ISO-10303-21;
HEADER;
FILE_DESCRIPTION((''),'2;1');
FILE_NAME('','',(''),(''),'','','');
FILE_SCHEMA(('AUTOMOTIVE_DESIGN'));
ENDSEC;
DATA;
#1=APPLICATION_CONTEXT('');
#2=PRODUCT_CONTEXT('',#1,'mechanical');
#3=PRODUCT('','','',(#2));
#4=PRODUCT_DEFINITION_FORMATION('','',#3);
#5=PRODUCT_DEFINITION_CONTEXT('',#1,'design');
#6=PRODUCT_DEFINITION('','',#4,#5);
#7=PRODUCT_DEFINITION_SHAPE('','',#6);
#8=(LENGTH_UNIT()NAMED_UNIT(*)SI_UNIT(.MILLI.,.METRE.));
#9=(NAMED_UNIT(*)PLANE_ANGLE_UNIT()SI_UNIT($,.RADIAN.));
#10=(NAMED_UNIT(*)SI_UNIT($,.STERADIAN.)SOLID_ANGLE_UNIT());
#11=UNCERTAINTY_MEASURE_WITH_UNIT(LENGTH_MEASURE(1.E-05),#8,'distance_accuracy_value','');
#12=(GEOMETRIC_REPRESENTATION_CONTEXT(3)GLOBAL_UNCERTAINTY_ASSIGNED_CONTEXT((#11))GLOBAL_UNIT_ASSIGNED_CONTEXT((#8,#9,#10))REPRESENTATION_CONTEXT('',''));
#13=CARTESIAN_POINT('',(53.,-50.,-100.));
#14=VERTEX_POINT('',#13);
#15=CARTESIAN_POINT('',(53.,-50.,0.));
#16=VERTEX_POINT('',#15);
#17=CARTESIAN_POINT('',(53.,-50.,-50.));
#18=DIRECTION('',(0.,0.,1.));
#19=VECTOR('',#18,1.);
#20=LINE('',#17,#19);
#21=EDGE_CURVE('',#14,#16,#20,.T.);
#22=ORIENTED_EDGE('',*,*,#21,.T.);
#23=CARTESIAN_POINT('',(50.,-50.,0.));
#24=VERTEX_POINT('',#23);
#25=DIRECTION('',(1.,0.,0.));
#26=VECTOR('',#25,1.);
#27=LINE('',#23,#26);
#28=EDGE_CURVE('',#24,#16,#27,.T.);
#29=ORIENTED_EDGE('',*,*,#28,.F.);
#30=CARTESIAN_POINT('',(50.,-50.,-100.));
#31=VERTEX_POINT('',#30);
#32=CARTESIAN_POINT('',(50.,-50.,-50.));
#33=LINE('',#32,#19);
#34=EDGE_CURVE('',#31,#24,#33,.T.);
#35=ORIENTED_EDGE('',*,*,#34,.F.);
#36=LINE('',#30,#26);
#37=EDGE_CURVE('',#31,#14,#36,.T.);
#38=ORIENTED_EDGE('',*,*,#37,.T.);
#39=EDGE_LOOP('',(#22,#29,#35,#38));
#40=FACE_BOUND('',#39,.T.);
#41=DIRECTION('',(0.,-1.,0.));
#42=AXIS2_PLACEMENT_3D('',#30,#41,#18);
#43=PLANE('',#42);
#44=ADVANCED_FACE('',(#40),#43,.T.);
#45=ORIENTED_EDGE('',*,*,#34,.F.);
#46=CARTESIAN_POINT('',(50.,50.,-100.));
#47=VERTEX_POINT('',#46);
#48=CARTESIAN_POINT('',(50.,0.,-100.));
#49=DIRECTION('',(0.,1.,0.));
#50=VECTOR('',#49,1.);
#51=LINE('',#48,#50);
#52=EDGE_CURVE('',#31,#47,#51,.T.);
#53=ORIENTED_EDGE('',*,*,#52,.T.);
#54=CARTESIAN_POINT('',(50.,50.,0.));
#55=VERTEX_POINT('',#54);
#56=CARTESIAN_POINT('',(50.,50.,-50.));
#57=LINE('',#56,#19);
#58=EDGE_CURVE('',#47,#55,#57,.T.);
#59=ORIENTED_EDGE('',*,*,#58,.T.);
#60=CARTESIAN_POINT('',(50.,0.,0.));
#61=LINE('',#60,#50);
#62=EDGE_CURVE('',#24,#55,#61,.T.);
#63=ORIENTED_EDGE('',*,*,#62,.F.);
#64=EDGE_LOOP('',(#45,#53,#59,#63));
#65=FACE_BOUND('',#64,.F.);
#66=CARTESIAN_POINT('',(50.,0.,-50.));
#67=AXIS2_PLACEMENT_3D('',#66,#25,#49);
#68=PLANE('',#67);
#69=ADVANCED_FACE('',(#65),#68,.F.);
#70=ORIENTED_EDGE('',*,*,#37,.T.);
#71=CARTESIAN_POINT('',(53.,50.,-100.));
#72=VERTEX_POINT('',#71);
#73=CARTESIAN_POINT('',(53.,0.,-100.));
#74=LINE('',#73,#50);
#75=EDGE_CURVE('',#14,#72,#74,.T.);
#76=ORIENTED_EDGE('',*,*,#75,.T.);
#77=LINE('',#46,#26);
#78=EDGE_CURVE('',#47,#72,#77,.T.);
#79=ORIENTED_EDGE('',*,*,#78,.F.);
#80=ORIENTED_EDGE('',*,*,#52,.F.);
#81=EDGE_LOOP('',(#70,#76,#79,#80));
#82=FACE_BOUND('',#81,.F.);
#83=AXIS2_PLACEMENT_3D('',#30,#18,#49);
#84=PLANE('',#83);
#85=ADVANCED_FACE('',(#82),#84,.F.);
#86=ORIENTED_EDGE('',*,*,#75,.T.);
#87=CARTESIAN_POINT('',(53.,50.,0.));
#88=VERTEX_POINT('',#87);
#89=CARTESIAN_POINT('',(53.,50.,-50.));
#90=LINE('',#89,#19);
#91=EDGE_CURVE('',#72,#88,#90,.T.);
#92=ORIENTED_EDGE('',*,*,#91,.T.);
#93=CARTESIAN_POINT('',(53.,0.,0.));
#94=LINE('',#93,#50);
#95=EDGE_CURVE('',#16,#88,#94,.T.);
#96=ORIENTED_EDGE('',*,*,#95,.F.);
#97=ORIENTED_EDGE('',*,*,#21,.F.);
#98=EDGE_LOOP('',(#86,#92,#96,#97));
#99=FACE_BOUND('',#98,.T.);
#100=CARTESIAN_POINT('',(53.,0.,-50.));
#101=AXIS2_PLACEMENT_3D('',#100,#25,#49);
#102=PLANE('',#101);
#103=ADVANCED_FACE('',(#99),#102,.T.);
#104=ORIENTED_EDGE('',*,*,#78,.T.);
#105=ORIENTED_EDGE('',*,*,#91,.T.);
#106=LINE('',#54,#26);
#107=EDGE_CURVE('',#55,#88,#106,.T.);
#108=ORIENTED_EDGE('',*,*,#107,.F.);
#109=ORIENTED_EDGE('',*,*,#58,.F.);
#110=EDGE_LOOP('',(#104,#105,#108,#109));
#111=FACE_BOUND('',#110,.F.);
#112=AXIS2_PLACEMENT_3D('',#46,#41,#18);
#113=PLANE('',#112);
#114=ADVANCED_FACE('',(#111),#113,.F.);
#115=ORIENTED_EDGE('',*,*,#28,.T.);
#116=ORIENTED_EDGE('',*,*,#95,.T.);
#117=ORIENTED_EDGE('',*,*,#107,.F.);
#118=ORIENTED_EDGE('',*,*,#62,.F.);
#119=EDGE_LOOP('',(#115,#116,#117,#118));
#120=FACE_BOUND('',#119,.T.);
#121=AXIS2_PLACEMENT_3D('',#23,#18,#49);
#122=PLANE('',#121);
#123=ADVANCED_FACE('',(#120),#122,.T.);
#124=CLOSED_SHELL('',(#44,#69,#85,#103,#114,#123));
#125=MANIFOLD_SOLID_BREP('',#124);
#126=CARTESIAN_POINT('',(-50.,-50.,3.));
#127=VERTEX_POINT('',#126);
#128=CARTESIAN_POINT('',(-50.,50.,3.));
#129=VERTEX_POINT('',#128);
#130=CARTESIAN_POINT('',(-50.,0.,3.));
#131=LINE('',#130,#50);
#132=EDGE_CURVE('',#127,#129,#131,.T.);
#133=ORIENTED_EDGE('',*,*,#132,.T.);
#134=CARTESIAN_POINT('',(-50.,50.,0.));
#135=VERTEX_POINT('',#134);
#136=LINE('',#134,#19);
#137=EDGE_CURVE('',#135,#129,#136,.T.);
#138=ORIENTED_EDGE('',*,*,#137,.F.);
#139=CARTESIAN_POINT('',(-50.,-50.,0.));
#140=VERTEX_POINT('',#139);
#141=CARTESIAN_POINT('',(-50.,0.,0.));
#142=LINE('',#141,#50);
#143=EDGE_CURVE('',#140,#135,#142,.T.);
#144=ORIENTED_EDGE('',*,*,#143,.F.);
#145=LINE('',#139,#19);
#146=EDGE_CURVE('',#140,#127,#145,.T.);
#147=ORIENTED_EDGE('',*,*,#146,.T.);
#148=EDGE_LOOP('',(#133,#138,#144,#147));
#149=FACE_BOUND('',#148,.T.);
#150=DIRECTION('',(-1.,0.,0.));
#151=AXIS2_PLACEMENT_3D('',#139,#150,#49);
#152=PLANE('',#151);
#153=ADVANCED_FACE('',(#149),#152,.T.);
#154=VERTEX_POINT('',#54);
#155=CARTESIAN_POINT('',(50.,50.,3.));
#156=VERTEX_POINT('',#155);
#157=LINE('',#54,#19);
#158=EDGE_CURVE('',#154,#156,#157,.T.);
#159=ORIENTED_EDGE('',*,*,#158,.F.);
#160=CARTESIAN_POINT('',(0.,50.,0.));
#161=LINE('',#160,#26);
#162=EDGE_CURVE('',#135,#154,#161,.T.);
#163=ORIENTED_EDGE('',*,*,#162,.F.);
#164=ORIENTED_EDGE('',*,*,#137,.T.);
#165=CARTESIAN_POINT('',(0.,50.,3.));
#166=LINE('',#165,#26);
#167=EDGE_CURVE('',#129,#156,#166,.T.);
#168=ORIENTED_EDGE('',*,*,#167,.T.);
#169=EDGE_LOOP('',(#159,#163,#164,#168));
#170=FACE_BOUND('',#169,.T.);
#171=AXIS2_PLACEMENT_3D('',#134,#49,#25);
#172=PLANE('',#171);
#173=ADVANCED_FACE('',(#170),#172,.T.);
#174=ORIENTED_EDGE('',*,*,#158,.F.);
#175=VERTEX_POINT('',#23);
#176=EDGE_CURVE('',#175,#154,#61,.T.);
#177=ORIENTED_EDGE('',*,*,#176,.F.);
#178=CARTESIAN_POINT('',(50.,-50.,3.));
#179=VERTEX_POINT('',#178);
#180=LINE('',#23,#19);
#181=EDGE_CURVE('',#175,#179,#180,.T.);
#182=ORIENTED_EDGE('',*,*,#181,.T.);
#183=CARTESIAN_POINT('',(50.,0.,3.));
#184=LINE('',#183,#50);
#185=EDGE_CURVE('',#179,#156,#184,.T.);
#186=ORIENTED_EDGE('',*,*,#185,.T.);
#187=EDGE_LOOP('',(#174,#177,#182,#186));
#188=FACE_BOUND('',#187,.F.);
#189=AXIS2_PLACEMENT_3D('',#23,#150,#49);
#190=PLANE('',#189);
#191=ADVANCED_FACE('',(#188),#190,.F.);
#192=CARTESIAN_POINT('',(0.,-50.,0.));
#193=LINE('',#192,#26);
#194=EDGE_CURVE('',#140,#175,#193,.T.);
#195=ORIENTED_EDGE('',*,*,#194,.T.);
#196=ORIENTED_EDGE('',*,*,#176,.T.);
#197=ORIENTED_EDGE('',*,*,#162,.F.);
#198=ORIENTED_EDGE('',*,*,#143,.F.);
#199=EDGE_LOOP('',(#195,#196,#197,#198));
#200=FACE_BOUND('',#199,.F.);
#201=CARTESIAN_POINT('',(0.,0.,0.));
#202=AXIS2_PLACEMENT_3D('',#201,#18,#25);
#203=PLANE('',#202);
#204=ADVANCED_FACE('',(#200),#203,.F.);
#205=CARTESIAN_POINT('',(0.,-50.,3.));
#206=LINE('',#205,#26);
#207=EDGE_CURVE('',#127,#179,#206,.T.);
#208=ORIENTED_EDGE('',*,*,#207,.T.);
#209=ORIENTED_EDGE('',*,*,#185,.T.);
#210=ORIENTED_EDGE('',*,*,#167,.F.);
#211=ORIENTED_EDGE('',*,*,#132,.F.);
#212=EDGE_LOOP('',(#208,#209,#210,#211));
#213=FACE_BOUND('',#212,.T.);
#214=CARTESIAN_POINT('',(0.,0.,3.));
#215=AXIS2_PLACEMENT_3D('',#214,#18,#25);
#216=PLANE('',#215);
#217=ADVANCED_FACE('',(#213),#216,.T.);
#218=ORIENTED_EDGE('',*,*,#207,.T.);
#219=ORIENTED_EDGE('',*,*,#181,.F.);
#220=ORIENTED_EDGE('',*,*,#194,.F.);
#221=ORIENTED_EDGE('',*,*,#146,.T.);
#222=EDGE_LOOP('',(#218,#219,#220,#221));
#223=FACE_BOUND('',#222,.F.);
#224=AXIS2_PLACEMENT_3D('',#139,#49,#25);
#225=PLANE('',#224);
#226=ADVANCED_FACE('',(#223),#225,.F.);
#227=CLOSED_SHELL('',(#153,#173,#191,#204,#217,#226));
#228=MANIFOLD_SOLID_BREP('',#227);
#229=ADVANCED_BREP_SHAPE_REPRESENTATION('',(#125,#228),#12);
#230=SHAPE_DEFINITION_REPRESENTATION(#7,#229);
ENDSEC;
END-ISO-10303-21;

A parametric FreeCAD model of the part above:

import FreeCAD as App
import Part
import Sketcher

V = App.Vector

doc = App.newDocument("Part")
body = doc.addObject("PartDesign::Body", "Body")

# Sketch on YZ plane
sketch1 = doc.addObject("Sketcher::SketchObject", "Sketch")
body.addObject(sketch1)
sketch1.AttachmentSupport = (doc.YZ_Plane, [""])
sketch1.MapMode = "FlatFace"
sketch1.AttachmentOffset = App.Placement(V(0, 0, 50), App.Rotation())
sketch1.addGeometry(Part.LineSegment(V(-50, 0, 0), V(-50, -100, 0)), False)
sketch1.addGeometry(Part.LineSegment(V(-50, -100, 0), V(50, -100, 0)), False)
sketch1.addGeometry(Part.LineSegment(V(50, -100, 0), V(50, 0, 0)), False)
sketch1.addGeometry(Part.LineSegment(V(50, 0, 0), V(-50, 0, 0)), False)
sketch1.addConstraint(Sketcher.Constraint("Coincident", 0, 2, 1, 1))
sketch1.addConstraint(Sketcher.Constraint("Coincident", 1, 2, 2, 1))
sketch1.addConstraint(Sketcher.Constraint("Coincident", 2, 2, 3, 1))
sketch1.addConstraint(Sketcher.Constraint("Coincident", 3, 2, 0, 1))
sketch1.addConstraint(Sketcher.Constraint("Vertical", 0))
sketch1.addConstraint(Sketcher.Constraint("Horizontal", 1))
sketch1.addConstraint(Sketcher.Constraint("Vertical", 2))
sketch1.addConstraint(Sketcher.Constraint("Horizontal", 3))
sketch1.addConstraint(Sketcher.Constraint("Symmetric", 2, 2, 3, 2, -1, 1))
sketch1.addConstraint(Sketcher.Constraint("Equal", 3, 0))
sketch1.addConstraint(Sketcher.Constraint("DistanceX", 1, 1, 1, 2, 100.0))
pad1 = doc.addObject("PartDesign::Pad", "Pad")
body.addObject(pad1)
pad1.Profile = sketch1
pad1.Length = 3
body2 = doc.addObject("PartDesign::Body", "Body001")

# Sketch on XY plane
sketch2 = doc.addObject("Sketcher::SketchObject", "Sketch001")
body2.addObject(sketch2)
sketch2.AttachmentSupport = (doc.getObject("XY_Plane001"), [""])
sketch2.MapMode = "FlatFace"
sketch2.addGeometry(Part.LineSegment(V(-50, 50, 0), V(-50, -50, 0)), False)
sketch2.addGeometry(Part.LineSegment(V(-50, -50, 0), V(50, -50, 0)), False)
sketch2.addGeometry(Part.LineSegment(V(50, -50, 0), V(50, 50, 0)), False)
sketch2.addGeometry(Part.LineSegment(V(50, 50, 0), V(-50, 50, 0)), False)
sketch2.addConstraint(Sketcher.Constraint("Coincident", 0, 2, 1, 1))
sketch2.addConstraint(Sketcher.Constraint("Coincident", 1, 2, 2, 1))
sketch2.addConstraint(Sketcher.Constraint("Coincident", 2, 2, 3, 1))
sketch2.addConstraint(Sketcher.Constraint("Coincident", 3, 2, 0, 1))
sketch2.addConstraint(Sketcher.Constraint("Vertical", 0))
sketch2.addConstraint(Sketcher.Constraint("Horizontal", 1))
sketch2.addConstraint(Sketcher.Constraint("Vertical", 2))
sketch2.addConstraint(Sketcher.Constraint("Horizontal", 3))
sketch2.addConstraint(Sketcher.Constraint("Symmetric", 0, 2, 2, 2, -1, 1))
sketch2.addConstraint(Sketcher.Constraint("Equal", 3, 0))
sketch2.addConstraint(Sketcher.Constraint("DistanceX", 1, 1, 1, 2, 100.0))
pad2 = doc.addObject("PartDesign::Pad", "Pad001")
body2.addObject(pad2)
pad2.Profile = sketch2
pad2.Length = 3

doc.recompute()
